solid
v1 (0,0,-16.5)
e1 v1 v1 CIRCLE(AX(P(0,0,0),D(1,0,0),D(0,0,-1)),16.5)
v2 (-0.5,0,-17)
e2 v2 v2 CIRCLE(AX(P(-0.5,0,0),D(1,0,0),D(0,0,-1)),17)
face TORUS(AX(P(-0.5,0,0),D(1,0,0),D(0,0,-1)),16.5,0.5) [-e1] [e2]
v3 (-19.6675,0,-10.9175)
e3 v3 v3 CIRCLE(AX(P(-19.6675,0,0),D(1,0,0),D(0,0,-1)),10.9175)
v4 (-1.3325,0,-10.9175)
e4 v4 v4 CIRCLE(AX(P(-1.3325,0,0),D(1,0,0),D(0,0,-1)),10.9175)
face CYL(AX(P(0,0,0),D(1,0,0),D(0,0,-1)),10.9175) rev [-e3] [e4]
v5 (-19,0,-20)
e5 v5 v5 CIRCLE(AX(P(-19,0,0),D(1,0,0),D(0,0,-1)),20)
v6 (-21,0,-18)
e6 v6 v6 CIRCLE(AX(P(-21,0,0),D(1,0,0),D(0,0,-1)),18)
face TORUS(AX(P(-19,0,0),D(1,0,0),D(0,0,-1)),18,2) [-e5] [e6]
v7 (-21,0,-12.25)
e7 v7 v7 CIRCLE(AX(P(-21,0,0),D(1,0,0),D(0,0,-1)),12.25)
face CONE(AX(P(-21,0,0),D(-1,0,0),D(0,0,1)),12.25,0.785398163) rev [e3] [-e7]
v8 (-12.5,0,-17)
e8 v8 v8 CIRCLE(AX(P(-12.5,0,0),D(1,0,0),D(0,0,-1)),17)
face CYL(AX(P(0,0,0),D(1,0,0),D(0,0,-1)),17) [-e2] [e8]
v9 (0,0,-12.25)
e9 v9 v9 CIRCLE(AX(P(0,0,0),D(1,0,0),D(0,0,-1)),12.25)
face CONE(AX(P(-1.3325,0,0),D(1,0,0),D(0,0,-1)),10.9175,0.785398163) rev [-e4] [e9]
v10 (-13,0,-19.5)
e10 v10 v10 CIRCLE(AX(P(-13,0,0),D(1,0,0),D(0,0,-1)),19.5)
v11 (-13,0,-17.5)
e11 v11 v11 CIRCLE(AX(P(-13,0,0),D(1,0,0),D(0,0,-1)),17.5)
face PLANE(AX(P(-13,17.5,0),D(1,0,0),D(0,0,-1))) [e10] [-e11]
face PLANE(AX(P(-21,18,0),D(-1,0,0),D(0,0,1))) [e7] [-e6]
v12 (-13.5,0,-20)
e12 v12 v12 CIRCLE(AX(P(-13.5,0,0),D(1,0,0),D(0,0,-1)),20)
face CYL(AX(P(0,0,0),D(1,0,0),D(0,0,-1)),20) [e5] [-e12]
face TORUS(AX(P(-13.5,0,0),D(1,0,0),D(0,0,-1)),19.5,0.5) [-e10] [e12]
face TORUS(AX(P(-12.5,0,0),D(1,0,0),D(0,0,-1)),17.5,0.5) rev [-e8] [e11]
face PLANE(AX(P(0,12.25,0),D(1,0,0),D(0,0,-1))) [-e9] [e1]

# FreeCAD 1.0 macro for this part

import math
import FreeCAD as App
import Part
import Sketcher

V = App.Vector

doc = App.newDocument("Part")
body = doc.addObject("PartDesign::Body", "Body")

sketch1 = body.newObject("Sketcher::SketchObject", "Sketch")
sketch1.AttachmentSupport = (doc.getObject("XY_Plane"), [""])
sketch1.MapMode = "FlatFace"
sketch1.addGeometry(Part.LineSegment(V(0, 12.25, 0), V(0, 16.5, 0)), False)
sketch1.addGeometry(Part.ArcOfCircle(Part.Circle(V(-0.5, 16.5, 0), V(0, 0, 1), 0.5), math.radians(0), math.radians(90)), False)
sketch1.addGeometry(Part.LineSegment(V(-0.5, 17, 0), V(-12.5, 17, 0)), False)
sketch1.addGeometry(Part.ArcOfCircle(Part.Circle(V(-12.5, 17.5, 0), V(0, 0, 1), 0.5), math.radians(180), math.radians(270)), False)
sketch1.addGeometry(Part.LineSegment(V(-13, 17.5, 0), V(-13, 19.5, 0)), False)
sketch1.addGeometry(Part.ArcOfCircle(Part.Circle(V(-13.5, 19.5, 0), V(0, 0, 1), 0.5), math.radians(0), math.radians(90)), False)
sketch1.addGeometry(Part.LineSegment(V(-13.5, 20, 0), V(-19, 20, 0)), False)
sketch1.addGeometry(Part.ArcOfCircle(Part.Circle(V(-19, 18, 0), V(0, 0, 1), 2), math.radians(90), math.radians(180)), False)
sketch1.addGeometry(Part.LineSegment(V(-21, 18, 0), V(-21, 12.25, 0)), False)
sketch1.addGeometry(Part.LineSegment(V(-21, 12.25, 0), V(-19.67, 10.92, 0)), False)
sketch1.addGeometry(Part.LineSegment(V(-19.67, 10.92, 0), V(-1.33, 10.92, 0)), False)
sketch1.addGeometry(Part.LineSegment(V(-1.33, 10.92, 0), V(0, 12.25, 0)), False)
sketch1.addConstraint(Sketcher.Constraint("Tangent", 0, 2, 1, 1))
sketch1.addConstraint(Sketcher.Constraint("Tangent", 1, 2, 2, 1))
sketch1.addConstraint(Sketcher.Constraint("Tangent", 2, 2, 3, 2))
sketch1.addConstraint(Sketcher.Constraint("Tangent", 3, 1, 4, 1))
sketch1.addConstraint(Sketcher.Constraint("Tangent", 4, 2, 5, 1))
sketch1.addConstraint(Sketcher.Constraint("Tangent", 5, 2, 6, 1))
sketch1.addConstraint(Sketcher.Constraint("Tangent", 6, 2, 7, 1))
sketch1.addConstraint(Sketcher.Constraint("Tangent", 7, 2, 8, 1))
sketch1.addConstraint(Sketcher.Constraint("Coincident", 8, 2, 9, 1))
sketch1.addConstraint(Sketcher.Constraint("Coincident", 9, 2, 10, 1))
sketch1.addConstraint(Sketcher.Constraint("Coincident", 10, 2, 11, 1))
sketch1.addConstraint(Sketcher.Constraint("Coincident", 11, 2, 0, 1))
sketch1.addConstraint(Sketcher.Constraint("Vertical", 0))
sketch1.addConstraint(Sketcher.Constraint("Horizontal", 2))
sketch1.addConstraint(Sketcher.Constraint("Vertical", 4))
sketch1.addConstraint(Sketcher.Constraint("Horizontal", 6))
sketch1.addConstraint(Sketcher.Constraint("Vertical", 8))
sketch1.addConstraint(Sketcher.Constraint("Horizontal", 10))
sketch1.addConstraint(Sketcher.Constraint("Equal", 1, 3))
sketch1.addConstraint(Sketcher.Constraint("Equal", 3, 5))
sketch1.addConstraint(Sketcher.Constraint("PointOnObject", 0, 2, -2))
sketch1.addConstraint(Sketcher.Constraint("Perpendicular", 9, 11))
sketch1.addConstraint(Sketcher.Constraint("Horizontal", 8, 2, 11, 2))
sketch1.addConstraint(Sketcher.Constraint("Equal", 9, 11))
sketch1.addConstraint(Sketcher.Constraint("Radius", 7, 2.0))
sketch1.addConstraint(Sketcher.Constraint("Radius", 1, 0.5))
sketch1.addConstraint(Sketcher.Constraint("DistanceX", 2, 2, 2, 1, 12.0))
sketch1.addConstraint(Sketcher.Constraint("DistanceY", 4, 1, 4, 2, 2.0))
sketch1.addConstraint(Sketcher.Constraint("DistanceX", 6, 2, 6, 1, 5.5))
sketch1.addConstraint(Sketcher.Constraint("DistanceY", -1, 1, 7, 3, 18.0))
sketch1.addConstraint(Sketcher.Constraint("DistanceY", 0, 1, 0, 2, 4.25))
sketch1.addConstraint(Sketcher.Constraint("DistanceX", 10, 1, 10, 2, 18.335))
revolution = body.newObject("PartDesign::Revolution", "Revolution")
revolution.Profile = sketch1
revolution.ReferenceAxis = (sketch1, ["H_Axis"])
revolution.Angle = 360

doc.recompute()
